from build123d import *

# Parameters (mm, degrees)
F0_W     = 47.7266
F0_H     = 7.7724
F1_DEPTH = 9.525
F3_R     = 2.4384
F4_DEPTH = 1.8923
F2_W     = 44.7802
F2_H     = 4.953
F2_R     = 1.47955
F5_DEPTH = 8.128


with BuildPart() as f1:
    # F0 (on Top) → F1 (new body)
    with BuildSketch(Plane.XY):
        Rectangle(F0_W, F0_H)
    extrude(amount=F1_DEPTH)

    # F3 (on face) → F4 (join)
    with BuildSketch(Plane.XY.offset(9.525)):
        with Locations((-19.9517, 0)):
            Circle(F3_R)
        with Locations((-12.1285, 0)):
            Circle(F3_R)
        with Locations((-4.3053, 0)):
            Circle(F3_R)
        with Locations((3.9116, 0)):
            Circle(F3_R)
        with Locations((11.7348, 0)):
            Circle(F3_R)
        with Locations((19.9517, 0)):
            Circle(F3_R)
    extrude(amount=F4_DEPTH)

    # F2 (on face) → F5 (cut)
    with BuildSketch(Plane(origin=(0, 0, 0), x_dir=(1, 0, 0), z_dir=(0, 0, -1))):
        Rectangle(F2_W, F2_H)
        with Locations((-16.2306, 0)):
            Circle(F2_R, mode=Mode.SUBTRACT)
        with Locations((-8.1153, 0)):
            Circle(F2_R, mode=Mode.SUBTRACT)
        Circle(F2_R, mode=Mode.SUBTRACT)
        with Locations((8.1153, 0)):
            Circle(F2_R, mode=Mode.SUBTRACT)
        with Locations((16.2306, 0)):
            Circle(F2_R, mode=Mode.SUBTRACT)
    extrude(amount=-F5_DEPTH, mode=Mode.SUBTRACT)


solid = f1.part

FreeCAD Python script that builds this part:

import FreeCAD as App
import Part
import Sketcher
from FreeCAD import Vector
Q = App.Units.Quantity

doc = App.newDocument("Part")
params = doc.addObject("Spreadsheet::Sheet", "Params")
for row, (alias, value) in enumerate([
    ("sketch1_width", "1.879 in"),
    ("sketch1_height", "0.306 in"),
    ("pad1_length", "0.375 in"),
    ("sketch2_diameter", "0.192 in"),
    ("pad2_length", "0.0745 in"),
    ("sketch3_width", "1.763 in"),
    ("sketch3_height", "0.195 in"),
    ("pocket1_length", "0.32 in"),
], start=1):
    params.set(f"A{row}", alias)
    params.set(f"B{row}", "=" + value)
    params.setAlias(f"B{row}", alias)

body = doc.addObject("PartDesign::Body", "Body")

sketch1 = body.newObject("Sketcher::SketchObject", "Sketch")
sketch1.AttachmentSupport = (doc.getObject("XY_Plane"), [""])
sketch1.MapMode = "FlatFace"
sketch1.addGeometry([
    Part.LineSegment(Vector(-23.8633, 3.8862, 0), Vector(-23.8633, -3.8862, 0)),
    Part.LineSegment(Vector(-23.8633, -3.8862, 0), Vector(23.8633, -3.8862, 0)),
    Part.LineSegment(Vector(23.8633, -3.8862, 0), Vector(23.8633, 3.8862, 0)),
    Part.LineSegment(Vector(23.8633, 3.8862, 0), Vector(-23.8633, 3.8862, 0)),
], False)
sketch1.addConstraint([
    Sketcher.Constraint("Coincident", 0, 2, 1, 1),
    Sketcher.Constraint("Coincident", 1, 2, 2, 1),
    Sketcher.Constraint("Coincident", 2, 2, 3, 1),
    Sketcher.Constraint("Coincident", 3, 2, 0, 1),
    Sketcher.Constraint("Vertical", 0),
    Sketcher.Constraint("Horizontal", 1),
    Sketcher.Constraint("Vertical", 2),
    Sketcher.Constraint("Horizontal", 3),
    Sketcher.Constraint("Symmetric", 0, 2, 2, 2, -1, 1),
    Sketcher.Constraint("DistanceX", 1, 1, 1, 2, Q("1.879 in")),
    Sketcher.Constraint("DistanceY", 0, 2, 0, 1, Q("0.306 in")),
])
sketch1.setExpression("Constraints[9]", "Params.sketch1_width")
sketch1.setExpression("Constraints[10]", "Params.sketch1_height")
pad1 = body.newObject("PartDesign::Pad", "Pad")
pad1.Profile = sketch1
pad1.setExpression("Length", "Params.pad1_length")

sketch2 = body.newObject("Sketcher::SketchObject", "Sketch001")
sketch2.AttachmentSupport = (doc.getObject("XY_Plane"), [""])
sketch2.MapMode = "FlatFace"
sketch2.AttachmentOffset = App.Placement(Vector(0, 0, 0.375 * 25.4), App.Rotation())
sketch2.addGeometry([
    Part.Circle(Vector(-19.9517, 0, 0), Vector(0, 0, 1), 2.4384),
    Part.Circle(Vector(-12.1285, 0, 0), Vector(0, 0, 1), 2.4384),
    Part.Circle(Vector(-4.3053, 0, 0), Vector(0, 0, 1), 2.4384),
    Part.Circle(Vector(3.9116, 0, 0), Vector(0, 0, 1), 2.4384),
    Part.Circle(Vector(11.7348, 0, 0), Vector(0, 0, 1), 2.4384),
    Part.Circle(Vector(19.9517, 0, 0), Vector(0, 0, 1), 2.4384),
], False)
sketch2.addConstraint([
    Sketcher.Constraint("Equal", 0, 1),
    Sketcher.Constraint("Equal", 1, 2),
    Sketcher.Constraint("Equal", 2, 3),
    Sketcher.Constraint("Equal", 3, 4),
    Sketcher.Constraint("Equal", 4, 5),
    Sketcher.Constraint("Symmetric", 0, 3, 5, 3, -1, 1),
    Sketcher.Constraint("PointOnObject", 0, 3, -1),
    Sketcher.Constraint("PointOnObject", 1, 3, -1),
    Sketcher.Constraint("PointOnObject", 2, 3, -1),
    Sketcher.Constraint("PointOnObject", 3, 3, -1),
    Sketcher.Constraint("PointOnObject", 4, 3, -1),
    Sketcher.Constraint("Diameter", 0, Q("0.192 in")),
    Sketcher.Constraint("DistanceX", -1, 1, 3, 3, Q("0.154 in")),
    Sketcher.Constraint("DistanceX", -1, 1, 4, 3, Q("0.462 in")),
    Sketcher.Constraint("DistanceX", 0, 3, 1, 3, Q("0.308 in")),
    Sketcher.Constraint("DistanceX", 1, 3, 2, 3, Q("0.308 in")),
    Sketcher.Constraint("DistanceX", 2, 3, 5, 3, Q("0.955 in")),
])
sketch2.setExpression("Constraints[11]", "Params.sketch2_diameter")
pad2 = body.newObject("PartDesign::Pad", "Pad001")
pad2.Profile = sketch2
pad2.setExpression("Length", "Params.pad2_length")

sketch3 = body.newObject("Sketcher::SketchObject", "Sketch002")
sketch3.AttachmentSupport = (doc.getObject("XY_Plane"), [""])
sketch3.MapMode = "FlatFace"
sketch3.addGeometry([
    Part.LineSegment(Vector(-22.3901, -2.4765, 0), Vector(-22.3901, 2.4765, 0)),
    Part.LineSegment(Vector(-22.3901, 2.4765, 0), Vector(22.3901, 2.4765, 0)),
    Part.LineSegment(Vector(22.3901, 2.4765, 0), Vector(22.3901, -2.4765, 0)),
    Part.LineSegment(Vector(22.3901, -2.4765, 0), Vector(-22.3901, -2.4765, 0)),
    Part.Circle(Vector(-16.2306, 0, 0), Vector(0, 0, 1), 1.47955),
    Part.Circle(Vector(-8.1153, 0, 0), Vector(0, 0, 1), 1.47955),
    Part.Circle(Vector(0, 0, 0), Vector(0, 0, 1), 1.47955),
    Part.Circle(Vector(8.1153, 0, 0), Vector(0, 0, 1), 1.47955),
    Part.Circle(Vector(16.2306, 0, 0), Vector(0, 0, 1), 1.47955),
], False)
sketch3.addConstraint([
    Sketcher.Constraint("Coincident", 0, 2, 1, 1),
    Sketcher.Constraint("Coincident", 1, 2, 2, 1),
    Sketcher.Constraint("Coincident", 2, 2, 3, 1),
    Sketcher.Constraint("Coincident", 3, 2, 0, 1),
    Sketcher.Constraint("Vertical", 0),
    Sketcher.Constraint("Horizontal", 1),
    Sketcher.Constraint("Vertical", 2),
    Sketcher.Constraint("Horizontal", 3),
    Sketcher.Constraint("Coincident", 6, 3, -1, 1),
    Sketcher.Constraint("Equal", 4, 5),
    Sketcher.Constraint("Equal", 5, 6),
    Sketcher.Constraint("Equal", 6, 7),
    Sketcher.Constraint("Equal", 7, 8),
    Sketcher.Constraint("Symmetric", 5, 3, 7, 3, -1, 1),
    Sketcher.Constraint("Symmetric", 4, 3, 8, 3, -1, 1),
    Sketcher.Constraint("Symmetric", 0, 2, 2, 2, -1, 1),
    Sketcher.Constraint("PointOnObject", 4, 3, -1),
    Sketcher.Constraint("PointOnObject", 5, 3, -1),
    Sketcher.Constraint("Diameter", 4, Q("0.1165 in")),
    Sketcher.Constraint("DistanceX", 1, 1, 1, 2, Q("1.763 in")),
    Sketcher.Constraint("DistanceY", 0, 1, 0, 2, Q("0.195 in")),
    Sketcher.Constraint("DistanceX", 4, 3, -1, 1, Q("0.639 in")),
    Sketcher.Constraint("DistanceX", 5, 3, 7, 3, Q("0.639 in")),
])
sketch3.setExpression("Constraints[19]", "Params.sketch3_width")
sketch3.setExpression("Constraints[20]", "Params.sketch3_height")
pocket1 = body.newObject("PartDesign::Pocket", "Pocket")
pocket1.Profile = sketch3
pocket1.setExpression("Length", "Params.pocket1_length")
pocket1.Reversed = True

doc.recompute()
